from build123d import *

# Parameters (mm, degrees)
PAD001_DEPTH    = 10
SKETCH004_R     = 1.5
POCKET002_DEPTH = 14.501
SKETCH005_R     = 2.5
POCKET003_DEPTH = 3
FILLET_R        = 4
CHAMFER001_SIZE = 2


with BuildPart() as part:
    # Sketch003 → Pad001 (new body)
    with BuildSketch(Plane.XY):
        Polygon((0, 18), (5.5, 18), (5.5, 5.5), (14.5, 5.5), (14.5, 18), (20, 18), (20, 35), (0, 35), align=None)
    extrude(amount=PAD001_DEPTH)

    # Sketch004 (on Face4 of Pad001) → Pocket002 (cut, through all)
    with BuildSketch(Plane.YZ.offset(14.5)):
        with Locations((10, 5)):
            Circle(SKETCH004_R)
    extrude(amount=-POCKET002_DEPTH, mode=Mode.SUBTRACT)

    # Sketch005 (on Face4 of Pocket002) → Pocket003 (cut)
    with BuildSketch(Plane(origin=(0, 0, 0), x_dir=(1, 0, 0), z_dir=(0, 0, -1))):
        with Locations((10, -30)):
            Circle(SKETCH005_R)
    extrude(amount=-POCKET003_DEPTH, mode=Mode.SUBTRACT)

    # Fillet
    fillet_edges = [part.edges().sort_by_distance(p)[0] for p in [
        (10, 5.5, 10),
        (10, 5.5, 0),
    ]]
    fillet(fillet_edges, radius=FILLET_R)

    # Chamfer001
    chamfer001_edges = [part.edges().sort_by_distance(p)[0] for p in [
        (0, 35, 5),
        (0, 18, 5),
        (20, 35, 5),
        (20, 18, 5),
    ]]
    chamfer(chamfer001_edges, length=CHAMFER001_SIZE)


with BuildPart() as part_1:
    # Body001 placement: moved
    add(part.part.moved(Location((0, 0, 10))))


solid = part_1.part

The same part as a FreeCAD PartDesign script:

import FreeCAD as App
import Part
import Sketcher


def edges_at(feature, points):
    """Names of the edges that pass closest to the given points."""
    edges = feature.Shape.Edges
    near = lambda p: min(range(len(edges)), key=lambda i: edges[i].distToShape(Part.Vertex(*p))[0])
    return sorted({f"Edge{near(p) + 1}" for p in points})

doc = App.newDocument("Part")
body = doc.addObject("PartDesign::Body", "Body")

sketch1 = body.newObject("Sketcher::SketchObject", "Sketch")
sketch1.AttachmentSupport = (doc.getObject("XY_Plane"), [""])
sketch1.MapMode = "FlatFace"
sketch1.addGeometry([
    Part.LineSegment(App.Vector(0, 18, 0), App.Vector(6, 18, 0)),
    Part.LineSegment(App.Vector(6, 18, 0), App.Vector(6, 6, 0)),
    Part.LineSegment(App.Vector(6, 6, 0), App.Vector(14, 6, 0)),
    Part.LineSegment(App.Vector(14, 6, 0), App.Vector(14, 18, 0)),
    Part.LineSegment(App.Vector(14, 18, 0), App.Vector(20, 18, 0)),
    Part.LineSegment(App.Vector(20, 18, 0), App.Vector(20, 35, 0)),
    Part.LineSegment(App.Vector(20, 35, 0), App.Vector(0, 35, 0)),
    Part.LineSegment(App.Vector(0, 35, 0), App.Vector(0, 18, 0)),
], False)
sketch1.addConstraint([
    Sketcher.Constraint("Coincident", 0, 2, 1, 1),
    Sketcher.Constraint("Coincident", 1, 2, 2, 1),
    Sketcher.Constraint("Coincident", 2, 2, 3, 1),
    Sketcher.Constraint("Coincident", 3, 2, 4, 1),
    Sketcher.Constraint("Coincident", 4, 2, 5, 1),
    Sketcher.Constraint("Coincident", 5, 2, 6, 1),
    Sketcher.Constraint("Coincident", 6, 2, 7, 1),
    Sketcher.Constraint("Coincident", 7, 2, 0, 1),
    Sketcher.Constraint("Horizontal", 0),
    Sketcher.Constraint("Vertical", 1),
    Sketcher.Constraint("Horizontal", 2),
    Sketcher.Constraint("Vertical", 3),
    Sketcher.Constraint("Horizontal", 4),
    Sketcher.Constraint("Vertical", 5),
    Sketcher.Constraint("Horizontal", 6),
    Sketcher.Constraint("Vertical", 7),
    Sketcher.Constraint("PointOnObject", 6, 2, -2),
    Sketcher.Constraint("Horizontal", 0, 2, 3, 2),
    Sketcher.Constraint("Equal", 0, 4),
    Sketcher.Constraint("DistanceX", 2, 1, 2, 2, 9.0),
    Sketcher.Constraint("DistanceX", 6, 2, 6, 1, 20.0),
    Sketcher.Constraint("DistanceY", 5, 1, 5, 2, 17.0),
    Sketcher.Constraint("DistanceY", 1, 2, 1, 1, 12.5),
    Sketcher.Constraint("DistanceY", -1, 1, 0, 2, 18.0),
])
pad1 = body.newObject("PartDesign::Pad", "Pad")
pad1.Profile = sketch1
pad1.Length = 10

sketch2 = body.newObject("Sketcher::SketchObject", "Sketch001")
sketch2.AttachmentSupport = (doc.getObject("YZ_Plane"), [""])
sketch2.MapMode = "FlatFace"
sketch2.AttachmentOffset = App.Placement(App.Vector(0, 0, 14.5), App.Rotation())
sketch2.addGeometry(Part.Circle(App.Vector(10, 5, 0), App.Vector(0, 0, 1), 1.5), False)
sketch2.addConstraint([
    Sketcher.Constraint("Diameter", 0, 3.0),
    Sketcher.Constraint("DistanceX", -1, 1, 0, 3, 10.0),
    Sketcher.Constraint("DistanceY", -1, 1, 0, 3, 5.0),
])
pocket1 = body.newObject("PartDesign::Pocket", "Pocket")
pocket1.Profile = sketch2
pocket1.Type = "ThroughAll"

sketch3 = body.newObject("Sketcher::SketchObject", "Sketch002")
sketch3.AttachmentSupport = (doc.getObject("XY_Plane"), [""])
sketch3.MapMode = "FlatFace"
sketch3.addGeometry(Part.Circle(App.Vector(10, 30, 0), App.Vector(0, 0, 1), 2.5), False)
sketch3.addConstraint([
    Sketcher.Constraint("Diameter", 0, 5.0),
    Sketcher.Constraint("DistanceX", -1, 1, 0, 3, 10.0),
    Sketcher.Constraint("DistanceY", -1, 1, 0, 3, 30.0),
])
pocket2 = body.newObject("PartDesign::Pocket", "Pocket001")
pocket2.Profile = sketch3
pocket2.Length = 3
pocket2.Reversed = True
doc.recompute()

fillet = body.newObject("PartDesign::Fillet", "Fillet")
fillet.Base = (pocket2, edges_at(pocket2, [(10, 5.5, 10), (10, 5.5, 0)]))
fillet.Radius = 4
doc.recompute()

chamfer = body.newObject("PartDesign::Chamfer", "Chamfer")
chamfer.Base = (fillet, edges_at(fillet, [
    (0, 35, 5),
    (0, 18, 5),
    (20, 35, 5),
    (20, 18, 5),
]))
chamfer.Size = 2
body2 = doc.addObject("PartDesign::Body", "Body001")
doc.recompute()

body.Placement = App.Placement(App.Vector(0, 0, 10), App.Rotation(App.Vector(0, 0, 1), 0))
boolean = body2.newObject("PartDesign::Boolean", "Boolean")
boolean.Type = "Fuse"
boolean.addObjects([body])

doc.recompute()
